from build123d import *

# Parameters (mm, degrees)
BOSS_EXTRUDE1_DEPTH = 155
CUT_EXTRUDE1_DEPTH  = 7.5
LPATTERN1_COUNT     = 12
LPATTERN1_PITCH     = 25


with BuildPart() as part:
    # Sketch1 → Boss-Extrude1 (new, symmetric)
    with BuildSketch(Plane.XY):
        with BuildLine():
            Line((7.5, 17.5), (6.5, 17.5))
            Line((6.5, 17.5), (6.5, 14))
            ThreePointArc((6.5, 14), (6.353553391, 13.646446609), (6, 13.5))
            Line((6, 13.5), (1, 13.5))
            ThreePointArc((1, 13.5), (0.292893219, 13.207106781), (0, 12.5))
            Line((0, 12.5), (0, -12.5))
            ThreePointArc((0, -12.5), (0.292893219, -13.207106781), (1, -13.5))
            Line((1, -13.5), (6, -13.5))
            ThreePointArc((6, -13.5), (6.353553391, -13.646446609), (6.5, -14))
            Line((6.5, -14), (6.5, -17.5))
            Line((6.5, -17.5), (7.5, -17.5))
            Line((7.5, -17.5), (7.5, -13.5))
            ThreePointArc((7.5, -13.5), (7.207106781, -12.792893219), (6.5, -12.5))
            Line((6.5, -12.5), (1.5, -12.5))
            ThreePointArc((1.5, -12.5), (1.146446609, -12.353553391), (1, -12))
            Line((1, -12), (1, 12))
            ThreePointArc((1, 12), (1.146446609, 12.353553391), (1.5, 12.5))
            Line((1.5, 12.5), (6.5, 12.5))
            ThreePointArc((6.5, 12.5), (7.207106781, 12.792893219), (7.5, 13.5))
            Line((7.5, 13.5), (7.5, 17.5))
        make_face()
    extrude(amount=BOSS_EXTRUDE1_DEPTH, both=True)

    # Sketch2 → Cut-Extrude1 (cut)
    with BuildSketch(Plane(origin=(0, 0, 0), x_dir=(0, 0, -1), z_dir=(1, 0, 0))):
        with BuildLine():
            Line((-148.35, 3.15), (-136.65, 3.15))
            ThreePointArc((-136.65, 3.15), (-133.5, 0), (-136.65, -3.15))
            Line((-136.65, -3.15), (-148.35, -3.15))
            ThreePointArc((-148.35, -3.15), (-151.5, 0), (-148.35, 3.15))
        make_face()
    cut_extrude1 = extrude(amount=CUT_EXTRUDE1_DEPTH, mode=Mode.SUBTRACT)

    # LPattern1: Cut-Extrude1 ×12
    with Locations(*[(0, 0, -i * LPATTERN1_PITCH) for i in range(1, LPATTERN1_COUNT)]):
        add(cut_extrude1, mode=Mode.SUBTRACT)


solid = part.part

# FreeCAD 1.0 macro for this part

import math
import FreeCAD as App
import Part
import Sketcher

V = App.Vector

doc = App.newDocument("Part")
body = doc.addObject("PartDesign::Body", "Body")

# Sketch on XY plane
sketch1 = body.newObject("Sketcher::SketchObject", "Sketch")
sketch1.AttachmentSupport = (doc.getObject("XY_Plane"), [""])
sketch1.MapMode = "FlatFace"
sketch1.addGeometry([
    Part.LineSegment(V(7.5, 17.5, 0), V(6.5, 17.5, 0)),  # 0
    Part.LineSegment(V(6.5, 17.5, 0), V(6.5, 14, 0)),  # 1
    Part.ArcOfCircle(Part.Circle(V(6, 14, 0), V(0, 0, 1), 0.5), math.radians(-90), math.radians(0)),  # 2
    Part.LineSegment(V(6, 13.5, 0), V(1, 13.5, 0)),  # 3
    Part.ArcOfCircle(Part.Circle(V(1, 12.5, 0), V(0, 0, 1), 1), math.radians(90), math.radians(180)),  # 4
    Part.LineSegment(V(0, 12.5, 0), V(0, -12.5, 0)),  # 5
    Part.ArcOfCircle(Part.Circle(V(1, -12.5, 0), V(0, 0, 1), 1), math.radians(-180), math.radians(-90)),  # 6
    Part.LineSegment(V(1, -13.5, 0), V(6, -13.5, 0)),  # 7
    Part.ArcOfCircle(Part.Circle(V(6, -14, 0), V(0, 0, 1), 0.5), math.radians(0), math.radians(90)),  # 8
    Part.LineSegment(V(6.5, -14, 0), V(6.5, -17.5, 0)),  # 9
    Part.LineSegment(V(6.5, -17.5, 0), V(7.5, -17.5, 0)),  # 10
    Part.LineSegment(V(7.5, -17.5, 0), V(7.5, -13.5, 0)),  # 11
    Part.ArcOfCircle(Part.Circle(V(6.5, -13.5, 0), V(0, 0, 1), 1), math.radians(0), math.radians(90)),  # 12
    Part.LineSegment(V(6.5, -12.5, 0), V(1.5, -12.5, 0)),  # 13
    Part.ArcOfCircle(Part.Circle(V(1.5, -12, 0), V(0, 0, 1), 0.5), math.radians(180), math.radians(270)),  # 14
    Part.LineSegment(V(1, -12, 0), V(1, 12, 0)),  # 15
    Part.ArcOfCircle(Part.Circle(V(1.5, 12, 0), V(0, 0, 1), 0.5), math.radians(90), math.radians(180)),  # 16
    Part.LineSegment(V(1.5, 12.5, 0), V(6.5, 12.5, 0)),  # 17
    Part.ArcOfCircle(Part.Circle(V(6.5, 13.5, 0), V(0, 0, 1), 1), math.radians(-90), math.radians(0)),  # 18
    Part.LineSegment(V(7.5, 13.5, 0), V(7.5, 17.5, 0)),  # 19
], False)
sketch1.addConstraint([
    Sketcher.Constraint("Coincident", 0, 2, 1, 1),
    Sketcher.Constraint("Tangent", 1, 2, 2, 2),
    Sketcher.Constraint("Tangent", 2, 1, 3, 1),
    Sketcher.Constraint("Tangent", 3, 2, 4, 1),
    Sketcher.Constraint("Tangent", 4, 2, 5, 1),
    Sketcher.Constraint("Tangent", 5, 2, 6, 1),
    Sketcher.Constraint("Tangent", 6, 2, 7, 1),
    Sketcher.Constraint("Tangent", 7, 2, 8, 2),
    Sketcher.Constraint("Tangent", 8, 1, 9, 1),
    Sketcher.Constraint("Coincident", 9, 2, 10, 1),
    Sketcher.Constraint("Coincident", 10, 2, 11, 1),
    Sketcher.Constraint("Tangent", 11, 2, 12, 1),
    Sketcher.Constraint("Tangent", 12, 2, 13, 1),
    Sketcher.Constraint("Tangent", 13, 2, 14, 2),
    Sketcher.Constraint("Tangent", 14, 1, 15, 1),
    Sketcher.Constraint("Tangent", 15, 2, 16, 2),
    Sketcher.Constraint("Tangent", 16, 1, 17, 1),
    Sketcher.Constraint("Tangent", 17, 2, 18, 1),
    Sketcher.Constraint("Tangent", 18, 2, 19, 1),
    Sketcher.Constraint("Coincident", 19, 2, 0, 1),
    Sketcher.Constraint("Horizontal", 0),
    Sketcher.Constraint("Vertical", 1),
    Sketcher.Constraint("Horizontal", 3),
    Sketcher.Constraint("Vertical", 5),
    Sketcher.Constraint("Horizontal", 7),
    Sketcher.Constraint("Vertical", 9),
    Sketcher.Constraint("Horizontal", 10),
    Sketcher.Constraint("Vertical", 11),
    Sketcher.Constraint("Horizontal", 13),
    Sketcher.Constraint("Vertical", 15),
    Sketcher.Constraint("Horizontal", 17),
    Sketcher.Constraint("Vertical", 19),
    Sketcher.Constraint("Equal", 4, 6),
    Sketcher.Constraint("Equal", 2, 8),
    Sketcher.Constraint("Equal", 6, 12),
    Sketcher.Constraint("Equal", 8, 14),
    Sketcher.Constraint("Equal", 14, 16),
    Sketcher.Constraint("Equal", 12, 18),
    Sketcher.Constraint("Symmetric", 4, 2, 5, 2, -1, 1),
    Sketcher.Constraint("Symmetric", 12, 3, 18, 3, -1),
    Sketcher.Constraint("Symmetric", 0, 2, 9, 2, -1),
    Sketcher.Constraint("Horizontal", 18, 3, 2, 1),
    Sketcher.Constraint("Vertical", 18, 3, 0, 2),
    Sketcher.Constraint("Vertical", 6, 2, 14, 1),
    Sketcher.Constraint("Radius", 4, 1.0),
    Sketcher.Constraint("Radius", 2, 0.5),
    Sketcher.Constraint("DistanceX", 3, 2, 3, 1, 5.0),
    Sketcher.Constraint("DistanceY", 5, 2, 5, 1, 25.0),
    Sketcher.Constraint("DistanceY", 11, 1, 11, 2, 4.0),
])
pad1 = body.newObject("PartDesign::Pad", "Pad")
pad1.Profile = sketch1
pad1.Length = 310
pad1.Midplane = True

# Sketch on YZ plane
sketch2 = body.newObject("Sketcher::SketchObject", "Sketch001")
sketch2.AttachmentSupport = (doc.getObject("YZ_Plane"), [""])
sketch2.MapMode = "FlatFace"
sketch2.addGeometry([
    Part.LineSegment(V(3.15, 136.65, 0), V(3.15, 148.35, 0)),
    Part.ArcOfCircle(Part.Circle(V(0, 148.35, 0), V(0, 0, 1), 3.15), math.radians(0), math.radians(180)),
    Part.LineSegment(V(-3.15, 148.35, 0), V(-3.15, 136.65, 0)),
    Part.ArcOfCircle(Part.Circle(V(0, 136.65, 0), V(0, 0, 1), 3.15), math.radians(180), math.radians(360)),
], False)
sketch2.addConstraint([
    Sketcher.Constraint("Tangent", 0, 2, 1, 1),
    Sketcher.Constraint("Tangent", 1, 2, 2, 1),
    Sketcher.Constraint("Tangent", 2, 2, 3, 1),
    Sketcher.Constraint("Tangent", 3, 2, 0, 1),
    Sketcher.Constraint("Vertical", 0),
    Sketcher.Constraint("Vertical", 2),
    Sketcher.Constraint("PointOnObject", 1, 3, -2),
    Sketcher.Constraint("Radius", 1, 3.15),
    Sketcher.Constraint("DistanceY", 0, 1, 0, 2, 11.7),
    Sketcher.Constraint("DistanceY", -1, 1, 1, 3, 148.35),
])
pocket1 = body.newObject("PartDesign::Pocket", "Pocket")
pocket1.Profile = sketch2
pocket1.Length = 7.5
pocket1.Reversed = True
doc.recompute()

linearpattern = body.newObject("PartDesign::LinearPattern", "LinearPattern")
linearpattern.Originals = [pocket1]
linearpattern.Direction = (doc.getObject("Z_Axis"), [""])
linearpattern.Mode = "offset"
linearpattern.Offset = 25
linearpattern.Occurrences = 12
linearpattern.Reversed = True
body.Tip = linearpattern

doc.recompute()
